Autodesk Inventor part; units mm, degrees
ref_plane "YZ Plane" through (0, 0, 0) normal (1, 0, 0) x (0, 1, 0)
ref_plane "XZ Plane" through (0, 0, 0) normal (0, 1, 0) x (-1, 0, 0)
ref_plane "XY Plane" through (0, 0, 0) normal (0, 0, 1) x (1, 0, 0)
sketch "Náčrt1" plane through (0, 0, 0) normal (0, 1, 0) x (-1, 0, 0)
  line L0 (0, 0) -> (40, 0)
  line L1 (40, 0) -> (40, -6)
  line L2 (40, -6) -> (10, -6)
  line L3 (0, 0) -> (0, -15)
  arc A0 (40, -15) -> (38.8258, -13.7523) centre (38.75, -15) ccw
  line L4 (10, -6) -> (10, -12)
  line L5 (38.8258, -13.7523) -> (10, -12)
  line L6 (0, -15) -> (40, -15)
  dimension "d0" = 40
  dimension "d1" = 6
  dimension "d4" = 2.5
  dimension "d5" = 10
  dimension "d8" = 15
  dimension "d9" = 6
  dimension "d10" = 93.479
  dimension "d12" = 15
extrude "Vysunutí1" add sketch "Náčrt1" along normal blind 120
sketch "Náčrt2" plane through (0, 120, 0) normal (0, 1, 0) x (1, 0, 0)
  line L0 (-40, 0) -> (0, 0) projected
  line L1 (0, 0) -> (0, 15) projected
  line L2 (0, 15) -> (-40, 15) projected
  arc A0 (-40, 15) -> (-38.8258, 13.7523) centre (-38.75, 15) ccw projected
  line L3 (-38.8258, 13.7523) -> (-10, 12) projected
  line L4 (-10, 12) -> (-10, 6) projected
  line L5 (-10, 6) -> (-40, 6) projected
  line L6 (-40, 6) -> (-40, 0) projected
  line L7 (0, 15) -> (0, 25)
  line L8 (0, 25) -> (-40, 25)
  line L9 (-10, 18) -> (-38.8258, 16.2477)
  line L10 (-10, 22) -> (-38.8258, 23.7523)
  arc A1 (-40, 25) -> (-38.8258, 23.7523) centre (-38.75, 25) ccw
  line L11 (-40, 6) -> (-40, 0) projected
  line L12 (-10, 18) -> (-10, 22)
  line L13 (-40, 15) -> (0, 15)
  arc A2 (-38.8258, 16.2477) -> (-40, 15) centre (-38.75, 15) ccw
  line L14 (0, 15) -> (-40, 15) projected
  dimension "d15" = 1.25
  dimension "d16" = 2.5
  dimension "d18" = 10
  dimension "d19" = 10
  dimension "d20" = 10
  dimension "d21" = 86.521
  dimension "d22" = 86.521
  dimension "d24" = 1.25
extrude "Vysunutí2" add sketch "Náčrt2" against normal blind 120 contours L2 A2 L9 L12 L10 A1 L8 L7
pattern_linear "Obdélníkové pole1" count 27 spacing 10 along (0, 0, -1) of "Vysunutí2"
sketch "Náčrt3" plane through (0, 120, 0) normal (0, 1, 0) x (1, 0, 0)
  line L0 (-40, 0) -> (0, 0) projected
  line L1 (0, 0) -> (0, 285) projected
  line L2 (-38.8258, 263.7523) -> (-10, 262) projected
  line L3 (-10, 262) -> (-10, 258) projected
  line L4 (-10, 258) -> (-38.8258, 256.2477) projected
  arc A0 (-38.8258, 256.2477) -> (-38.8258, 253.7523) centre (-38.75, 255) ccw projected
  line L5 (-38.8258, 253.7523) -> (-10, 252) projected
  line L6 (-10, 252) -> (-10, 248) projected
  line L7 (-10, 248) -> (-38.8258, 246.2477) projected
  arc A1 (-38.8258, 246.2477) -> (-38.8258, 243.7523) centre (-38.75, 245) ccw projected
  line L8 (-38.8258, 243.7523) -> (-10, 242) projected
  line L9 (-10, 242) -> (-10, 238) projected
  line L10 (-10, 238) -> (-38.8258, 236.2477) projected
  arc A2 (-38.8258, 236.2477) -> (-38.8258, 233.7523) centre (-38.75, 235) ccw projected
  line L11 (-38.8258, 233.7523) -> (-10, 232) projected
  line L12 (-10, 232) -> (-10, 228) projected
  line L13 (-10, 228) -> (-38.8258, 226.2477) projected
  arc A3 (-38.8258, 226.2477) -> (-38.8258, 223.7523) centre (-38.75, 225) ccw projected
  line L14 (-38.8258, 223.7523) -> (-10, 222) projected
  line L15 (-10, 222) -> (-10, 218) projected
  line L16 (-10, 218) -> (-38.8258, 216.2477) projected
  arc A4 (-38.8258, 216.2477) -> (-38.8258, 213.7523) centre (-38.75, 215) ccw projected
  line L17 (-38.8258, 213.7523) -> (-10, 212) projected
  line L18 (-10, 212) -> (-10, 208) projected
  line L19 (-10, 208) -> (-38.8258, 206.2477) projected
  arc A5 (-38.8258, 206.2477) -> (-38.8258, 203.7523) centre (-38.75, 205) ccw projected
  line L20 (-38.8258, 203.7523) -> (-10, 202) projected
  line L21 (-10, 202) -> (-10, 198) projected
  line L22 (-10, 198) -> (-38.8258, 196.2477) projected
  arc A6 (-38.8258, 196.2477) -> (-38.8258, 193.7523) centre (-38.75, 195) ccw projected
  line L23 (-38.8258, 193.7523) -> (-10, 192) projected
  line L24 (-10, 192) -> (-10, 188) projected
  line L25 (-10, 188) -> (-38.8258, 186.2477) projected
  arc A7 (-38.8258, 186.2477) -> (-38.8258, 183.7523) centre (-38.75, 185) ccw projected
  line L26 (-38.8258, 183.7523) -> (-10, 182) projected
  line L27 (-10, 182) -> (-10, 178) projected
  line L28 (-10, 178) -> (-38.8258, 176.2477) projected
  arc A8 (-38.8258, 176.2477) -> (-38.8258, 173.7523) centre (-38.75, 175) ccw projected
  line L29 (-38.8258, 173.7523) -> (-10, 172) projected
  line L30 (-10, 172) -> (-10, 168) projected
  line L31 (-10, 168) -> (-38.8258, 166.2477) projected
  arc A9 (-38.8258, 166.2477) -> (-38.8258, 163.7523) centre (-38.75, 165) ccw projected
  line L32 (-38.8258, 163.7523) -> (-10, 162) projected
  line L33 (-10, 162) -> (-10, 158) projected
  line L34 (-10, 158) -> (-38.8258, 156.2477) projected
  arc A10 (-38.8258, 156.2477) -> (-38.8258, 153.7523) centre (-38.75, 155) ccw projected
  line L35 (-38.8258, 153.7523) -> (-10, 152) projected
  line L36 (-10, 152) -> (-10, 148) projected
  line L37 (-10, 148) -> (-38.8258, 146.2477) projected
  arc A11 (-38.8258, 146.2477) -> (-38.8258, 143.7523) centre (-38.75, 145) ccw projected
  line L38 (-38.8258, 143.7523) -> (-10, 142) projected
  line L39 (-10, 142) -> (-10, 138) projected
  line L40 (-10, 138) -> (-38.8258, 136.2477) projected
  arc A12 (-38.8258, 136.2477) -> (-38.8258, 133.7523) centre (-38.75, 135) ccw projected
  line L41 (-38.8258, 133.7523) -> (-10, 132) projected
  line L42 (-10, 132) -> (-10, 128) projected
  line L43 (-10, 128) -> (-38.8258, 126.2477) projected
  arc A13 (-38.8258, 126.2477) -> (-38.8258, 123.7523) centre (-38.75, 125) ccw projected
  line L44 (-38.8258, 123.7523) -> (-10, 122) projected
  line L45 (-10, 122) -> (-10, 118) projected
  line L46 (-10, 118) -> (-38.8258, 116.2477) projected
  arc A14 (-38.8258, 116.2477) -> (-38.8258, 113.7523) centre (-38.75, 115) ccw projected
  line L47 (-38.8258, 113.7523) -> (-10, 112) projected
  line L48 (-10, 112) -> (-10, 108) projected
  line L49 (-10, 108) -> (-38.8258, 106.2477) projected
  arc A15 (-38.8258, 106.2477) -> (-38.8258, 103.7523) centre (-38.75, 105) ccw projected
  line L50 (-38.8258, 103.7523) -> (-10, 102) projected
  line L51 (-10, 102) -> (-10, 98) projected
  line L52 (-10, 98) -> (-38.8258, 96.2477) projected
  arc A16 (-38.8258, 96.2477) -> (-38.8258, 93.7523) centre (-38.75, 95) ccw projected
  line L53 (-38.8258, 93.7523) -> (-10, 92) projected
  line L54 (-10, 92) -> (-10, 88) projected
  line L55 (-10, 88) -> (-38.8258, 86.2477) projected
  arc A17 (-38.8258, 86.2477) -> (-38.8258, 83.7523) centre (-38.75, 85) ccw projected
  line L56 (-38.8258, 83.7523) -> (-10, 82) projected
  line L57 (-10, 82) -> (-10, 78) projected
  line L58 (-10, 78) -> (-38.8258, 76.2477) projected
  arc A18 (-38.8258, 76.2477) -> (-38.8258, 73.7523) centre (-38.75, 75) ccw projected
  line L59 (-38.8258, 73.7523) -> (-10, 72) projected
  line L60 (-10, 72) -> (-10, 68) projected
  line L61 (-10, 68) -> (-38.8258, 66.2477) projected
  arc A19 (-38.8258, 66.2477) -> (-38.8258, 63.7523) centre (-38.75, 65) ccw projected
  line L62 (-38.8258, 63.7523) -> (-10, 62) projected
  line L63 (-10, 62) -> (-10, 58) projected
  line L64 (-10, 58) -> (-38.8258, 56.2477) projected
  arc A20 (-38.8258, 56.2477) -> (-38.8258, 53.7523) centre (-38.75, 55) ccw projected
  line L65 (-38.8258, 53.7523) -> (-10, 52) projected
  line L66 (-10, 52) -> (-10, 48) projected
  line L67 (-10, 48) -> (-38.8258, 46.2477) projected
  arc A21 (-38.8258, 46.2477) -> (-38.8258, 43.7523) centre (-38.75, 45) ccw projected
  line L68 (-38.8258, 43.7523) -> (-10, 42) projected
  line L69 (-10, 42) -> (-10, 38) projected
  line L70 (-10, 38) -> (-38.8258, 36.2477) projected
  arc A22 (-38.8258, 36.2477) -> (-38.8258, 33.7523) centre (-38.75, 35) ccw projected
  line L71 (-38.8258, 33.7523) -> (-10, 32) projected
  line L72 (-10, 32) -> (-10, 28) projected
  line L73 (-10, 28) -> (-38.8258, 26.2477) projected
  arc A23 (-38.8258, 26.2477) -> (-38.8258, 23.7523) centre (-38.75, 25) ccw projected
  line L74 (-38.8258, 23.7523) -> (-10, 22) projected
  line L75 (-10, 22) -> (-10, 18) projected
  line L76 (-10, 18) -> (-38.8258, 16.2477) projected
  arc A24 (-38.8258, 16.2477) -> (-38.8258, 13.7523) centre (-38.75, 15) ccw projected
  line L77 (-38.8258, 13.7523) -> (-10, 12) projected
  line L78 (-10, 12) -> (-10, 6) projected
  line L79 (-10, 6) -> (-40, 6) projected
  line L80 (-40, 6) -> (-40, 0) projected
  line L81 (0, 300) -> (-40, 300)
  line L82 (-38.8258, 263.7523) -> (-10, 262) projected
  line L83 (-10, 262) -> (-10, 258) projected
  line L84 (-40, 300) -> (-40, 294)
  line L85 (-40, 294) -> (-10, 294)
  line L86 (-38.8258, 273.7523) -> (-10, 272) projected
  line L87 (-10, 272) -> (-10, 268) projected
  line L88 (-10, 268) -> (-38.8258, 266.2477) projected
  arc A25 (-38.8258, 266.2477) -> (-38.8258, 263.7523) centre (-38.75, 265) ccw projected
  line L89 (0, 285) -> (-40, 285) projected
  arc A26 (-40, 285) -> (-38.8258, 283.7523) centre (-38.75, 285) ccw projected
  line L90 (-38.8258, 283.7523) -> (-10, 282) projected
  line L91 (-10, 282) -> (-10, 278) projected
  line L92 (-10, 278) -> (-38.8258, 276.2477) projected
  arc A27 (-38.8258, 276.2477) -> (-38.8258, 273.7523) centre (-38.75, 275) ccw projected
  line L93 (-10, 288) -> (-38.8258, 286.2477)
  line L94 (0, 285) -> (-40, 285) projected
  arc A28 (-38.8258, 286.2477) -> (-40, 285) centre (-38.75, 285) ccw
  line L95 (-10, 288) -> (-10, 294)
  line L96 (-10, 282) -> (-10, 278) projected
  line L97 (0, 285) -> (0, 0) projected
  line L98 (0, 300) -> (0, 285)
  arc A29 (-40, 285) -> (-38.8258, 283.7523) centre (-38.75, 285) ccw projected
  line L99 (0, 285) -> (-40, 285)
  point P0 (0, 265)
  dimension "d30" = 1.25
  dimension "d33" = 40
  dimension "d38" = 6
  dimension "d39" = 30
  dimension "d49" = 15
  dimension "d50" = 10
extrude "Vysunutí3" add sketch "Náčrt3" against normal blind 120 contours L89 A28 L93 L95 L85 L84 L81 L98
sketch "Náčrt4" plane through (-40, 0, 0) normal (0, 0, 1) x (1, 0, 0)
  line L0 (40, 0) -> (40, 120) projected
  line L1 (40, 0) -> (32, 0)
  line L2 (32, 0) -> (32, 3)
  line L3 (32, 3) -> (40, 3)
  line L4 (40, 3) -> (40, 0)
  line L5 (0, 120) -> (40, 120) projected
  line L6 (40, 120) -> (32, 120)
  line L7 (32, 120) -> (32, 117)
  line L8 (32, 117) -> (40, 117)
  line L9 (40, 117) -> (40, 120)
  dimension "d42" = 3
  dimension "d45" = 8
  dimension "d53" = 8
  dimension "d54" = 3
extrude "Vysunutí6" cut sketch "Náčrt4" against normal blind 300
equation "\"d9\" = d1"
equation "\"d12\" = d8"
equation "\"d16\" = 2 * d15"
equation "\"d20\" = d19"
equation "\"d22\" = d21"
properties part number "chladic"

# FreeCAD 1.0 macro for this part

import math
import FreeCAD as App
import Part
import Sketcher

doc = App.newDocument("Part")
body = doc.addObject("PartDesign::Body", "Body")

sketch1 = doc.addObject("Sketcher::SketchObject", "Sketch")
body.addObject(sketch1)
sketch1.AttachmentSupport = (doc.XZ_Plane, [""])
sketch1.MapMode = "FlatFace"
sketch1.addGeometry([
    Part.LineSegment(App.Vector(-40, 0, 0), App.Vector(0, 0, 0)),
    Part.LineSegment(App.Vector(0, 0, 0), App.Vector(0, -15, 0)),
    Part.LineSegment(App.Vector(0, -15, 0), App.Vector(-40, -15, 0)),
    Part.ArcOfCircle(Part.Circle(App.Vector(-38.8, -15, 0), App.Vector(0, 0, 1), 1.2), math.radians(93), math.radians(180)),
    Part.LineSegment(App.Vector(-38.8, -13.8, 0), App.Vector(-10, -12, 0)),
    Part.LineSegment(App.Vector(-10, -12, 0), App.Vector(-10, -6, 0)),
    Part.LineSegment(App.Vector(-10, -6, 0), App.Vector(-40, -6, 0)),
    Part.LineSegment(App.Vector(-40, -6, 0), App.Vector(-40, 0, 0)),
], False)
sketch1.addConstraint([
    Sketcher.Constraint("Coincident", 0, 2, 1, 1),
    Sketcher.Constraint("Coincident", 1, 2, 2, 1),
    Sketcher.Constraint("Coincident", 2, 2, 3, 2),
    Sketcher.Constraint("Tangent", 3, 1, 4, 1),
    Sketcher.Constraint("Coincident", 4, 2, 5, 1),
    Sketcher.Constraint("Coincident", 5, 2, 6, 1),
    Sketcher.Constraint("Coincident", 6, 2, 7, 1),
    Sketcher.Constraint("Coincident", 7, 2, 0, 1),
    Sketcher.Constraint("Horizontal", 0),
    Sketcher.Constraint("Vertical", 1),
    Sketcher.Constraint("Horizontal", 2),
    Sketcher.Constraint("Vertical", 5),
    Sketcher.Constraint("Horizontal", 6),
    Sketcher.Constraint("Vertical", 7),
    Sketcher.Constraint("Coincident", 0, 2, -1, 1),
    Sketcher.Constraint("Horizontal", 3, 3, 1, 2),
    Sketcher.Constraint("Vertical", 2, 2, 6, 2),
    Sketcher.Constraint("Equal", 5, 7),
    Sketcher.Constraint("DistanceX", 0, 1, 0, 2, 40.0),
    Sketcher.Constraint("DistanceY", 1, 2, 1, 1, 15.0),
    Sketcher.Constraint("DistanceY", 5, 1, 5, 2, 6.0),
    Sketcher.Constraint("Radius", 3, 1.25),
    Sketcher.Constraint("DistanceX", 4, 2, -1, 1, 10.0),
])
pad1 = doc.addObject("PartDesign::Pad", "Pad")
body.addObject(pad1)
pad1.Profile = sketch1
pad1.Length = 120
pad1.Reversed = True

sketch2 = doc.addObject("Sketcher::SketchObject", "Sketch001")
body.addObject(sketch2)
sketch2.AttachmentSupport = (doc.XZ_Plane, [""])
sketch2.MapMode = "FlatFace"
sketch2.AttachmentOffset = App.Placement(App.Vector(0, 0, -120), App.Rotation())
sketch2.addGeometry([
    Part.LineSegment(App.Vector(-40, -15, 0), App.Vector(0, -15, 0)),
    Part.LineSegment(App.Vector(0, -15, 0), App.Vector(0, -25, 0)),
    Part.LineSegment(App.Vector(0, -25, 0), App.Vector(-40, -25, 0)),
    Part.ArcOfCircle(Part.Circle(App.Vector(-38.8, -25, 0), App.Vector(0, 0, 1), 1.2), math.radians(93), math.radians(180)),
    Part.LineSegment(App.Vector(-38.8, -23.8, 0), App.Vector(-10, -22, 0)),
    Part.LineSegment(App.Vector(-10, -22, 0), App.Vector(-10, -18, 0)),
    Part.LineSegment(App.Vector(-10, -18, 0), App.Vector(-38.8, -16.2, 0)),
    Part.ArcOfCircle(Part.Circle(App.Vector(-38.8, -15, 0), App.Vector(0, 0, 1), 1.2), math.radians(180), math.radians(267)),
], False)
sketch2.addConstraint([
    Sketcher.Constraint("Coincident", 0, 2, 1, 1),
    Sketcher.Constraint("Coincident", 1, 2, 2, 1),
    Sketcher.Constraint("Coincident", 2, 2, 3, 2),
    Sketcher.Constraint("Tangent", 3, 1, 4, 1),
    Sketcher.Constraint("Coincident", 4, 2, 5, 1),
    Sketcher.Constraint("Coincident", 5, 2, 6, 1),
    Sketcher.Constraint("Tangent", 6, 2, 7, 2),
    Sketcher.Constraint("Coincident", 7, 1, 0, 1),
    Sketcher.Constraint("Horizontal", 0),
    Sketcher.Constraint("Vertical", 1),
    Sketcher.Constraint("Horizontal", 2),
    Sketcher.Constraint("Vertical", 5),
    Sketcher.Constraint("Equal", 3, 7),
    Sketcher.Constraint("PointOnObject", 0, 2, -2),
    Sketcher.Constraint("Horizontal", 7, 3, 0, 2),
    Sketcher.Constraint("Horizontal", 3, 3, 1, 2),
    Sketcher.Constraint("Vertical", 3, 3, 7, 3),
    Sketcher.Constraint("Vertical", 3, 1, 6, 2),
    Sketcher.Constraint("DistanceY", 1, 2, 1, 1, 10.0),
    Sketcher.Constraint("Radius", 3, 1.25),
    Sketcher.Constraint("DistanceX", 4, 2, -1, 1, 10.0),
    Sketcher.Constraint("DistanceX", 0, 1, 0, 2, 40.0),
    Sketcher.Constraint("DistanceY", 5, 1, 5, 2, 4.0),
    Sketcher.Constraint("DistanceY", 3, 3, -1, 1, 25.0),
])
pad2 = doc.addObject("PartDesign::Pad", "Pad001")
body.addObject(pad2)
pad2.Profile = sketch2
pad2.Length = 120
doc.recompute()

linearpattern = doc.addObject("PartDesign::LinearPattern", "LinearPattern")
body.addObject(linearpattern)
linearpattern.Originals = [pad2]
linearpattern.Direction = (doc.Z_Axis, [""])
linearpattern.Mode = "offset"
linearpattern.Offset = 10
linearpattern.Occurrences = 27
linearpattern.Reversed = True
body.Tip = linearpattern

sketch3 = doc.addObject("Sketcher::SketchObject", "Sketch002")
body.addObject(sketch3)
sketch3.AttachmentSupport = (doc.XZ_Plane, [""])
sketch3.MapMode = "FlatFace"
sketch3.AttachmentOffset = App.Placement(App.Vector(0, 0, -120), App.Rotation())
sketch3.addGeometry([
    Part.LineSegment(App.Vector(-40, -285, 0), App.Vector(0, -285, 0)),
    Part.LineSegment(App.Vector(0, -285, 0), App.Vector(0, -300, 0)),
    Part.LineSegment(App.Vector(0, -300, 0), App.Vector(-40, -300, 0)),
    Part.LineSegment(App.Vector(-40, -300, 0), App.Vector(-40, -294, 0)),
    Part.LineSegment(App.Vector(-40, -294, 0), App.Vector(-10, -294, 0)),
    Part.LineSegment(App.Vector(-10, -294, 0), App.Vector(-10, -288, 0)),
    Part.LineSegment(App.Vector(-10, -288, 0), App.Vector(-38.8, -286.2, 0)),
    Part.ArcOfCircle(Part.Circle(App.Vector(-38.8, -285, 0), App.Vector(0, 0, 1), 1.2), math.radians(180), math.radians(267)),
], False)
sketch3.addConstraint([
    Sketcher.Constraint("Coincident", 0, 2, 1, 1),
    Sketcher.Constraint("Coincident", 1, 2, 2, 1),
    Sketcher.Constraint("Coincident", 2, 2, 3, 1),
    Sketcher.Constraint("Coincident", 3, 2, 4, 1),
    Sketcher.Constraint("Coincident", 4, 2, 5, 1),
    Sketcher.Constraint("Coincident", 5, 2, 6, 1),
    Sketcher.Constraint("Tangent", 6, 2, 7, 2),
    Sketcher.Constraint("Coincident", 7, 1, 0, 1),
    Sketcher.Constraint("Horizontal", 0),
    Sketcher.Constraint("Vertical", 1),
    Sketcher.Constraint("Horizontal", 2),
    Sketcher.Constraint("Vertical", 3),
    Sketcher.Constraint("Horizontal", 4),
    Sketcher.Constraint("Vertical", 5),
    Sketcher.Constraint("PointOnObject", 0, 2, -2),
    Sketcher.Constraint("Horizontal", 7, 3, 0, 2),
    Sketcher.Constraint("Vertical", 3, 2, 7, 1),
    Sketcher.Constraint("Equal", 3, 5),
    Sketcher.Constraint("DistanceX", 0, 1, 0, 2, 40.0),
    Sketcher.Constraint("DistanceX", 4, 1, 4, 2, 30.0),
    Sketcher.Constraint("DistanceY", 1, 2, 1, 1, 15.0),
    Sketcher.Constraint("DistanceY", 3, 1, 3, 2, 6.0),
    Sketcher.Constraint("Radius", 7, 1.25),
    Sketcher.Constraint("DistanceY", 7, 3, -1, 1, 285.0),
])
pad3 = doc.addObject("PartDesign::Pad", "Pad002")
body.addObject(pad3)
pad3.Profile = sketch3
pad3.Length = 120

sketch4 = doc.addObject("Sketcher::SketchObject", "Sketch003")
body.addObject(sketch4)
sketch4.AttachmentSupport = (doc.XY_Plane, [""])
sketch4.MapMode = "FlatFace"
sketch4.addGeometry([
    Part.LineSegment(App.Vector(-8, 0, 0), App.Vector(0, 0, 0)),
    Part.LineSegment(App.Vector(0, 0, 0), App.Vector(0, 3, 0)),
    Part.LineSegment(App.Vector(0, 3, 0), App.Vector(-8, 3, 0)),
    Part.LineSegment(App.Vector(-8, 3, 0), App.Vector(-8, 0, 0)),
    Part.LineSegment(App.Vector(-8, 117, 0), App.Vector(0, 117, 0)),
    Part.LineSegment(App.Vector(0, 117, 0), App.Vector(0, 120, 0)),
    Part.LineSegment(App.Vector(0, 120, 0), App.Vector(-8, 120, 0)),
    Part.LineSegment(App.Vector(-8, 120, 0), App.Vector(-8, 117, 0)),
], False)
sketch4.addConstraint([
    Sketcher.Constraint("Coincident", 0, 2, 1, 1),
    Sketcher.Constraint("Coincident", 1, 2, 2, 1),
    Sketcher.Constraint("Coincident", 2, 2, 3, 1),
    Sketcher.Constraint("Coincident", 3, 2, 0, 1),
    Sketcher.Constraint("Coincident", 4, 2, 5, 1),
    Sketcher.Constraint("Coincident", 5, 2, 6, 1),
    Sketcher.Constraint("Coincident", 6, 2, 7, 1),
    Sketcher.Constraint("Coincident", 7, 2, 4, 1),
    Sketcher.Constraint("Horizontal", 0),
    Sketcher.Constraint("Vertical", 1),
    Sketcher.Constraint("Horizontal", 2),
    Sketcher.Constraint("Vertical", 3),
    Sketcher.Constraint("Horizontal", 4),
    Sketcher.Constraint("Vertical", 5),
    Sketcher.Constraint("Horizontal", 6),
    Sketcher.Constraint("Vertical", 7),
    Sketcher.Constraint("Coincident", 0, 2, -1, 1),
    Sketcher.Constraint("PointOnObject", 4, 2, -2),
    Sketcher.Constraint("Vertical", 3, 2, 6, 2),
    Sketcher.Constraint("Equal", 3, 5),
    Sketcher.Constraint("DistanceX", 0, 1, 0, 2, 8.0),
    Sketcher.Constraint("DistanceY", 1, 1, 1, 2, 3.0),
    Sketcher.Constraint("DistanceY", -1, 1, 4, 2, 117.0),
])
pocket1 = doc.addObject("PartDesign::Pocket", "Pocket")
body.addObject(pocket1)
pocket1.Profile = sketch4
pocket1.Length = 300

doc.recompute()
